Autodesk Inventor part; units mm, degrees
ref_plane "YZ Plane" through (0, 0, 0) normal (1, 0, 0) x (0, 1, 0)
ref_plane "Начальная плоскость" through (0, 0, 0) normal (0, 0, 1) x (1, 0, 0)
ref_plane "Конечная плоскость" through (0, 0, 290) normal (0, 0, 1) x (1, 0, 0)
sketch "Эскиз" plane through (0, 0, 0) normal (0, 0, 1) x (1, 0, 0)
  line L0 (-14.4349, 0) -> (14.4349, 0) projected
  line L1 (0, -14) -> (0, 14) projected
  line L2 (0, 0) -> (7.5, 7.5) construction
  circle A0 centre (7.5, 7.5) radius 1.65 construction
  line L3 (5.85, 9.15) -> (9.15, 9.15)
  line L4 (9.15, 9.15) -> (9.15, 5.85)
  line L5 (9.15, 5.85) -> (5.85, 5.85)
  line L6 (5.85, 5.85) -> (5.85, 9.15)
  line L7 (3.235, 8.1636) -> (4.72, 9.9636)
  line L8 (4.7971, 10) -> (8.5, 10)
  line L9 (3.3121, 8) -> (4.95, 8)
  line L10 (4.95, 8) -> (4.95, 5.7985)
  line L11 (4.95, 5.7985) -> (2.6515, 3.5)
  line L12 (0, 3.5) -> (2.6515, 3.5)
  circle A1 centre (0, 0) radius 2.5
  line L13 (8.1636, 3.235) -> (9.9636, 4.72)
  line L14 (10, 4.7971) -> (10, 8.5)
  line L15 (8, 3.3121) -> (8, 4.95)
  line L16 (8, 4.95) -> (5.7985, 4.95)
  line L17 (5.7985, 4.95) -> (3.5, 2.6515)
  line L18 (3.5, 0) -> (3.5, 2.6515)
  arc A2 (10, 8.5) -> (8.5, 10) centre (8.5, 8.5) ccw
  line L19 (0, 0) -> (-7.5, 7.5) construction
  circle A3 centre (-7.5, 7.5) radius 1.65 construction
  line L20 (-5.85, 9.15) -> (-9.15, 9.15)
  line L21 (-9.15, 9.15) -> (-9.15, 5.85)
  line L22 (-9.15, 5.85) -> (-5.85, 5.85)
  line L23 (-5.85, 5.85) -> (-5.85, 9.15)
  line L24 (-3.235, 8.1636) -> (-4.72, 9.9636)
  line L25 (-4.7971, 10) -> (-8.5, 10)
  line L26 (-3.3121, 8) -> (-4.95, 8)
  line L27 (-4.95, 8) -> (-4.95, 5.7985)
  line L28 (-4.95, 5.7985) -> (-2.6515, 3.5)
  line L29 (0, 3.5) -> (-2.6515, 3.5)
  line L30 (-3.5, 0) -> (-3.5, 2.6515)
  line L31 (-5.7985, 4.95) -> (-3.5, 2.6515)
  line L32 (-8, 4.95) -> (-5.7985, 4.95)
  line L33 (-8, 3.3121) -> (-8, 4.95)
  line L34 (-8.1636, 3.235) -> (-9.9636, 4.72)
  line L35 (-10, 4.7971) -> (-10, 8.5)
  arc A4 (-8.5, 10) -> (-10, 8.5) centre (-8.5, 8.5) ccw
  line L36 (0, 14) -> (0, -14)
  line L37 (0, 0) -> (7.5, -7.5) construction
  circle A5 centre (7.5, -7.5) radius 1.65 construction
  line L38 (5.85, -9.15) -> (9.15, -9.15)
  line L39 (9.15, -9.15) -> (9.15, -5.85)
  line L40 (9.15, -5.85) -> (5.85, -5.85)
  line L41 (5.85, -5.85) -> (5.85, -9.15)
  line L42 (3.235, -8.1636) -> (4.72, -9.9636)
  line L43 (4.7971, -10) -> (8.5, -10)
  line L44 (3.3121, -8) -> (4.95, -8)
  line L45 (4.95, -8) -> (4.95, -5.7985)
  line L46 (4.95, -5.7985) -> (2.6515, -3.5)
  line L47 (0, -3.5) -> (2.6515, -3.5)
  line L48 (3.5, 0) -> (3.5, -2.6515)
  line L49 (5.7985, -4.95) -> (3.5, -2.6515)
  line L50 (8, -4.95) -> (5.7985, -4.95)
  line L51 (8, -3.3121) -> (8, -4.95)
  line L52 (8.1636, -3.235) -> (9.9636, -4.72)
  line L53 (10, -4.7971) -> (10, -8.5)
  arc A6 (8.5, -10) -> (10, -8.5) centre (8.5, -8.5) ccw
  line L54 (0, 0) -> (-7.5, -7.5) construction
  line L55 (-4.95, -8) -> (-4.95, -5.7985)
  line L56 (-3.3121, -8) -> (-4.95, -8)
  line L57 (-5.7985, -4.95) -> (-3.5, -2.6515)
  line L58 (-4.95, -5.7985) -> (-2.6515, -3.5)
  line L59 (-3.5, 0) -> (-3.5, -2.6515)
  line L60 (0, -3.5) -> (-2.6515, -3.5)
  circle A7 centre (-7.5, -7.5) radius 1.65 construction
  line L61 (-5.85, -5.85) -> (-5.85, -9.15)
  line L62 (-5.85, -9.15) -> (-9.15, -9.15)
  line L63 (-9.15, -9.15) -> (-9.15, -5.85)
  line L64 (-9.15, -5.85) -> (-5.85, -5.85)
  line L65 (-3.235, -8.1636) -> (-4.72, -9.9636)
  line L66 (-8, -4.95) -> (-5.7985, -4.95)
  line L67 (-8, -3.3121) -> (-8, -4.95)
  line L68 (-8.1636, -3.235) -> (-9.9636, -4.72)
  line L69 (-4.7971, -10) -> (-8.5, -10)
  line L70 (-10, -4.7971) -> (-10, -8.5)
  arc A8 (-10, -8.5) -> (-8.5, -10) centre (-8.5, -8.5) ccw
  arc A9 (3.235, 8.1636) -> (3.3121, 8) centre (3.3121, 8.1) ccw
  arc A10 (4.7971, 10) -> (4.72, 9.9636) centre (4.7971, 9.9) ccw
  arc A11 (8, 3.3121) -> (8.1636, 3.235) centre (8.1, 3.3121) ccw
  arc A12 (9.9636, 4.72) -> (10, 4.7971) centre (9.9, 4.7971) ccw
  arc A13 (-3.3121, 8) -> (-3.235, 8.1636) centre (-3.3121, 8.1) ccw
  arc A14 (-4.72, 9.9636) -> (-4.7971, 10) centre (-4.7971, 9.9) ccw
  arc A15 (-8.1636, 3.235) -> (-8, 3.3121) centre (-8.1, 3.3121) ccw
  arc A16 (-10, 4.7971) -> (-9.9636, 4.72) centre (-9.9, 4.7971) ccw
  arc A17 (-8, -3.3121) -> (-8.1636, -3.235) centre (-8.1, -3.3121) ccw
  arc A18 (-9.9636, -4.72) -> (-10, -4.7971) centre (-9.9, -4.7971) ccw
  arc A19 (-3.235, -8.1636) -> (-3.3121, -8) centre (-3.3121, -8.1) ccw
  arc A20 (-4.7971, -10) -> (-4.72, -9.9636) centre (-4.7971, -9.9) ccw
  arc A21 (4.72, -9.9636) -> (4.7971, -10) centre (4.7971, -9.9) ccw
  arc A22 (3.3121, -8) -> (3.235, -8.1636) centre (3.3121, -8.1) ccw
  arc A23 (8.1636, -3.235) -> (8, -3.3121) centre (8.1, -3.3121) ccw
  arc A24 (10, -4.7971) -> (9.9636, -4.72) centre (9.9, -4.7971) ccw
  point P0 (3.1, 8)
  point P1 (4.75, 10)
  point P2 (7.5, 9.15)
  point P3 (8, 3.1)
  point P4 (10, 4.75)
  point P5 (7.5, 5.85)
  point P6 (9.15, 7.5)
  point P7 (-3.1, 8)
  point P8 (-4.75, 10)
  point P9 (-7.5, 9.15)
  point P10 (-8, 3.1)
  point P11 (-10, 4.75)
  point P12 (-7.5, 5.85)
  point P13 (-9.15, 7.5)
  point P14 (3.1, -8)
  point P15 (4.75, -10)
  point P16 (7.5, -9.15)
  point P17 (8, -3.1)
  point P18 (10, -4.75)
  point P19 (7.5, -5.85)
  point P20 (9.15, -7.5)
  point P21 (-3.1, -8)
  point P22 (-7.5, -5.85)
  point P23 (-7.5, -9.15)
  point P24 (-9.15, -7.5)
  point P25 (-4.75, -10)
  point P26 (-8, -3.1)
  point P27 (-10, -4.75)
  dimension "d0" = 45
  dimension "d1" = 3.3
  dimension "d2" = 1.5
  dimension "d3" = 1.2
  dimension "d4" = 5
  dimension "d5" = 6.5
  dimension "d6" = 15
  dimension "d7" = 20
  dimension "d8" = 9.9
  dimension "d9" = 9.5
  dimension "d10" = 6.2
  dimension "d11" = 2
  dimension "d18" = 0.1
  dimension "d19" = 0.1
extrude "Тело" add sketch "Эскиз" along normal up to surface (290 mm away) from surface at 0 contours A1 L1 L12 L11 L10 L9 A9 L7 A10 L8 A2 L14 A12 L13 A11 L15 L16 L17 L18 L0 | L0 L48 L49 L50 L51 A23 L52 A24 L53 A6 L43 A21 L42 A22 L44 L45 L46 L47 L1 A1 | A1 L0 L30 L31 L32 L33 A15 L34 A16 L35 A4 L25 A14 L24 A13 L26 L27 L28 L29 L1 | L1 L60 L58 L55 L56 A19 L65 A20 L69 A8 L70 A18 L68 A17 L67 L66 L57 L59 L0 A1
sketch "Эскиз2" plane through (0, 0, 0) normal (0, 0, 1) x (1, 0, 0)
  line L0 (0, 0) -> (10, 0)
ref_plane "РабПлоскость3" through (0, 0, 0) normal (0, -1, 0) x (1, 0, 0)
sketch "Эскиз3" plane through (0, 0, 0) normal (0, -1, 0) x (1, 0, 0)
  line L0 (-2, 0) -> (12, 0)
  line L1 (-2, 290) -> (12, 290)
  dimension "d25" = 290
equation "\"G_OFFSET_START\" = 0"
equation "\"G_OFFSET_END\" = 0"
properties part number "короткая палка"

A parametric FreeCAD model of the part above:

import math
import FreeCAD as App
import Part
import Sketcher
Q = App.Units.Quantity

doc = App.newDocument("Part")
body = doc.addObject("PartDesign::Body", "Body")

# Sketch on XY plane
sketch1 = body.newObject("Sketcher::SketchObject", "Sketch")
sketch1.AttachmentSupport = (doc.getObject("XY_Plane"), [""])
sketch1.MapMode = "FlatFace"
sketch1.addGeometry(Part.LineSegment(App.Vector(2.65, 3.5, 0), App.Vector(-2.65, 3.5, 0)), False)
sketch1.addGeometry(Part.LineSegment(App.Vector(-2.65, 3.5, 0), App.Vector(-4.95, 5.8, 0)), False)
sketch1.addGeometry(Part.LineSegment(App.Vector(-4.95, 5.8, 0), App.Vector(-4.95, 8, 0)), False)
sketch1.addGeometry(Part.LineSegment(App.Vector(-4.95, 8, 0), App.Vector(-3.31, 8, 0)), False)
sketch1.addGeometry(Part.ArcOfCircle(Part.Circle(App.Vector(-3.31, 8.1, 0), App.Vector(0, 0, 1), 0.1), math.radians(-90), math.radians(40)), False)
sketch1.addGeometry(Part.LineSegment(App.Vector(-3.23, 8.16, 0), App.Vector(-4.72, 9.96, 0)), False)
sketch1.addGeometry(Part.ArcOfCircle(Part.Circle(App.Vector(-4.8, 9.9, 0), App.Vector(0, 0, 1), 0.1), math.radians(40), math.radians(90)), False)
sketch1.addGeometry(Part.LineSegment(App.Vector(-4.8, 10, 0), App.Vector(-8.5, 10, 0)), False)
sketch1.addGeometry(Part.ArcOfCircle(Part.Circle(App.Vector(-8.5, 8.5, 0), App.Vector(0, 0, 1), 1.5), math.radians(90), math.radians(180)), False)
sketch1.addGeometry(Part.LineSegment(App.Vector(-10, 8.5, 0), App.Vector(-10, 4.8, 0)), False)
sketch1.addGeometry(Part.ArcOfCircle(Part.Circle(App.Vector(-9.9, 4.8, 0), App.Vector(0, 0, 1), 0.1), math.radians(180), math.radians(230)), False)
sketch1.addGeometry(Part.LineSegment(App.Vector(-9.96, 4.72, 0), App.Vector(-8.16, 3.23, 0)), False)
sketch1.addGeometry(Part.ArcOfCircle(Part.Circle(App.Vector(-8.1, 3.31, 0), App.Vector(0, 0, 1), 0.1), math.radians(-130), math.radians(0)), False)
sketch1.addGeometry(Part.LineSegment(App.Vector(-8, 3.31, 0), App.Vector(-8, 4.95, 0)), False)
sketch1.addGeometry(Part.LineSegment(App.Vector(-8, 4.95, 0), App.Vector(-5.8, 4.95, 0)), False)
sketch1.addGeometry(Part.LineSegment(App.Vector(-5.8, 4.95, 0), App.Vector(-3.5, 2.65, 0)), False)
sketch1.addGeometry(Part.LineSegment(App.Vector(-3.5, 2.65, 0), App.Vector(-3.5, -2.65, 0)), False)
sketch1.addGeometry(Part.LineSegment(App.Vector(-3.5, -2.65, 0), App.Vector(-5.8, -4.95, 0)), False)
sketch1.addGeometry(Part.LineSegment(App.Vector(-5.8, -4.95, 0), App.Vector(-8, -4.95, 0)), False)
sketch1.addGeometry(Part.LineSegment(App.Vector(-8, -4.95, 0), App.Vector(-8, -3.31, 0)), False)
sketch1.addGeometry(Part.ArcOfCircle(Part.Circle(App.Vector(-8.1, -3.31, 0), App.Vector(0, 0, 1), 0.1), math.radians(0), math.radians(130)), False)
sketch1.addGeometry(Part.LineSegment(App.Vector(-8.16, -3.23, 0), App.Vector(-9.96, -4.72, 0)), False)
sketch1.addGeometry(Part.ArcOfCircle(Part.Circle(App.Vector(-9.9, -4.8, 0), App.Vector(0, 0, 1), 0.1), math.radians(130), math.radians(180)), False)
sketch1.addGeometry(Part.LineSegment(App.Vector(-10, -4.8, 0), App.Vector(-10, -8.5, 0)), False)
sketch1.addGeometry(Part.ArcOfCircle(Part.Circle(App.Vector(-8.5, -8.5, 0), App.Vector(0, 0, 1), 1.5), math.radians(180), math.radians(270)), False)
sketch1.addGeometry(Part.LineSegment(App.Vector(-8.5, -10, 0), App.Vector(-4.8, -10, 0)), False)
sketch1.addGeometry(Part.ArcOfCircle(Part.Circle(App.Vector(-4.8, -9.9, 0), App.Vector(0, 0, 1), 0.1), math.radians(-90), math.radians(-40)), False)
sketch1.addGeometry(Part.LineSegment(App.Vector(-4.72, -9.96, 0), App.Vector(-3.23, -8.16, 0)), False)
sketch1.addGeometry(Part.ArcOfCircle(Part.Circle(App.Vector(-3.31, -8.1, 0), App.Vector(0, 0, 1), 0.1), math.radians(-40), math.radians(90)), False)
sketch1.addGeometry(Part.LineSegment(App.Vector(-3.31, -8, 0), App.Vector(-4.95, -8, 0)), False)
sketch1.addGeometry(Part.LineSegment(App.Vector(-4.95, -8, 0), App.Vector(-4.95, -5.8, 0)), False)
sketch1.addGeometry(Part.LineSegment(App.Vector(-4.95, -5.8, 0), App.Vector(-2.65, -3.5, 0)), False)
sketch1.addGeometry(Part.LineSegment(App.Vector(-2.65, -3.5, 0), App.Vector(2.65, -3.5, 0)), False)
sketch1.addGeometry(Part.LineSegment(App.Vector(2.65, -3.5, 0), App.Vector(4.95, -5.8, 0)), False)
sketch1.addGeometry(Part.LineSegment(App.Vector(4.95, -5.8, 0), App.Vector(4.95, -8, 0)), False)
sketch1.addGeometry(Part.LineSegment(App.Vector(4.95, -8, 0), App.Vector(3.31, -8, 0)), False)
sketch1.addGeometry(Part.ArcOfCircle(Part.Circle(App.Vector(3.31, -8.1, 0), App.Vector(0, 0, 1), 0.1), math.radians(90), math.radians(220)), False)
sketch1.addGeometry(Part.LineSegment(App.Vector(3.23, -8.16, 0), App.Vector(4.72, -9.96, 0)), False)
sketch1.addGeometry(Part.ArcOfCircle(Part.Circle(App.Vector(4.8, -9.9, 0), App.Vector(0, 0, 1), 0.1), math.radians(-140), math.radians(-90)), False)
sketch1.addGeometry(Part.LineSegment(App.Vector(4.8, -10, 0), App.Vector(8.5, -10, 0)), False)
sketch1.addGeometry(Part.ArcOfCircle(Part.Circle(App.Vector(8.5, -8.5, 0), App.Vector(0, 0, 1), 1.5), math.radians(-90), math.radians(0)), False)
sketch1.addGeometry(Part.LineSegment(App.Vector(10, -8.5, 0), App.Vector(10, -4.8, 0)), False)
sketch1.addGeometry(Part.ArcOfCircle(Part.Circle(App.Vector(9.9, -4.8, 0), App.Vector(0, 0, 1), 0.1), math.radians(0), math.radians(50)), False)
sketch1.addGeometry(Part.LineSegment(App.Vector(9.96, -4.72, 0), App.Vector(8.16, -3.23, 0)), False)
sketch1.addGeometry(Part.ArcOfCircle(Part.Circle(App.Vector(8.1, -3.31, 0), App.Vector(0, 0, 1), 0.1), math.radians(50), math.radians(180)), False)
sketch1.addGeometry(Part.LineSegment(App.Vector(8, -3.31, 0), App.Vector(8, -4.95, 0)), False)
sketch1.addGeometry(Part.LineSegment(App.Vector(8, -4.95, 0), App.Vector(5.8, -4.95, 0)), False)
sketch1.addGeometry(Part.LineSegment(App.Vector(5.8, -4.95, 0), App.Vector(3.5, -2.65, 0)), False)
sketch1.addGeometry(Part.LineSegment(App.Vector(3.5, -2.65, 0), App.Vector(3.5, 2.65, 0)), False)
sketch1.addGeometry(Part.LineSegment(App.Vector(3.5, 2.65, 0), App.Vector(5.8, 4.95, 0)), False)
sketch1.addGeometry(Part.LineSegment(App.Vector(5.8, 4.95, 0), App.Vector(8, 4.95, 0)), False)
sketch1.addGeometry(Part.LineSegment(App.Vector(8, 4.95, 0), App.Vector(8, 3.31, 0)), False)
sketch1.addGeometry(Part.ArcOfCircle(Part.Circle(App.Vector(8.1, 3.31, 0), App.Vector(0, 0, 1), 0.1), math.radians(180), math.radians(310)), False)
sketch1.addGeometry(Part.LineSegment(App.Vector(8.16, 3.23, 0), App.Vector(9.96, 4.72, 0)), False)
sketch1.addGeometry(Part.ArcOfCircle(Part.Circle(App.Vector(9.9, 4.8, 0), App.Vector(0, 0, 1), 0.1), math.radians(-50), math.radians(0)), False)
sketch1.addGeometry(Part.LineSegment(App.Vector(10, 4.8, 0), App.Vector(10, 8.5, 0)), False)
sketch1.addGeometry(Part.ArcOfCircle(Part.Circle(App.Vector(8.5, 8.5, 0), App.Vector(0, 0, 1), 1.5), math.radians(0), math.radians(90)), False)
sketch1.addGeometry(Part.LineSegment(App.Vector(8.5, 10, 0), App.Vector(4.8, 10, 0)), False)
sketch1.addGeometry(Part.ArcOfCircle(Part.Circle(App.Vector(4.8, 9.9, 0), App.Vector(0, 0, 1), 0.1), math.radians(90), math.radians(140)), False)
sketch1.addGeometry(Part.LineSegment(App.Vector(4.72, 9.96, 0), App.Vector(3.23, 8.16, 0)), False)
sketch1.addGeometry(Part.ArcOfCircle(Part.Circle(App.Vector(3.31, 8.1, 0), App.Vector(0, 0, 1), 0.1), math.radians(140), math.radians(270)), False)
sketch1.addGeometry(Part.LineSegment(App.Vector(3.31, 8, 0), App.Vector(4.95, 8, 0)), False)
sketch1.addGeometry(Part.LineSegment(App.Vector(4.95, 8, 0), App.Vector(4.95, 5.8, 0)), False)
sketch1.addGeometry(Part.LineSegment(App.Vector(4.95, 5.8, 0), App.Vector(2.65, 3.5, 0)), False)
sketch1.addGeometry(Part.Circle(App.Vector(0, 0, 0), App.Vector(0, 0, 1), 2.5), False)
sketch1.addGeometry(Part.LineSegment(App.Vector(5.85, 5.85, 0), App.Vector(5.85, 9.15, 0)), False)
sketch1.addGeometry(Part.LineSegment(App.Vector(5.85, 9.15, 0), App.Vector(9.15, 9.15, 0)), False)
sketch1.addGeometry(Part.LineSegment(App.Vector(9.15, 9.15, 0), App.Vector(9.15, 5.85, 0)), False)
sketch1.addGeometry(Part.LineSegment(App.Vector(9.15, 5.85, 0), App.Vector(5.85, 5.85, 0)), False)
sketch1.addGeometry(Part.LineSegment(App.Vector(-5.85, 9.15, 0), App.Vector(-5.85, 5.85, 0)), False)
sketch1.addGeometry(Part.LineSegment(App.Vector(-5.85, 5.85, 0), App.Vector(-9.15, 5.85, 0)), False)
sketch1.addGeometry(Part.LineSegment(App.Vector(-9.15, 5.85, 0), App.Vector(-9.15, 9.15, 0)), False)
sketch1.addGeometry(Part.LineSegment(App.Vector(-9.15, 9.15, 0), App.Vector(-5.85, 9.15, 0)), False)
sketch1.addGeometry(Part.LineSegment(App.Vector(5.85, -9.15, 0), App.Vector(5.85, -5.85, 0)), False)
sketch1.addGeometry(Part.LineSegment(App.Vector(5.85, -5.85, 0), App.Vector(9.15, -5.85, 0)), False)
sketch1.addGeometry(Part.LineSegment(App.Vector(9.15, -5.85, 0), App.Vector(9.15, -9.15, 0)), False)
sketch1.addGeometry(Part.LineSegment(App.Vector(9.15, -9.15, 0), App.Vector(5.85, -9.15, 0)), False)
sketch1.addGeometry(Part.LineSegment(App.Vector(-5.85, -9.15, 0), App.Vector(-9.15, -9.15, 0)), False)
sketch1.addGeometry(Part.LineSegment(App.Vector(-9.15, -9.15, 0), App.Vector(-9.15, -5.85, 0)), False)
sketch1.addGeometry(Part.LineSegment(App.Vector(-9.15, -5.85, 0), App.Vector(-5.85, -5.85, 0)), False)
sketch1.addGeometry(Part.LineSegment(App.Vector(-5.85, -5.85, 0), App.Vector(-5.85, -9.15, 0)), False)
sketch1.addConstraint(Sketcher.Constraint("Coincident", 0, 2, 1, 1))
sketch1.addConstraint(Sketcher.Constraint("Coincident", 1, 2, 2, 1))
sketch1.addConstraint(Sketcher.Constraint("Coincident", 2, 2, 3, 1))
sketch1.addConstraint(Sketcher.Constraint("Tangent", 3, 2, 4, 1))
sketch1.addConstraint(Sketcher.Constraint("Tangent", 4, 2, 5, 1))
sketch1.addConstraint(Sketcher.Constraint("Tangent", 5, 2, 6, 1))
sketch1.addConstraint(Sketcher.Constraint("Tangent", 6, 2, 7, 1))
sketch1.addConstraint(Sketcher.Constraint("Tangent", 7, 2, 8, 1))
sketch1.addConstraint(Sketcher.Constraint("Tangent", 8, 2, 9, 1))
sketch1.addConstraint(Sketcher.Constraint("Tangent", 9, 2, 10, 1))
sketch1.addConstraint(Sketcher.Constraint("Tangent", 10, 2, 11, 1))
sketch1.addConstraint(Sketcher.Constraint("Tangent", 11, 2, 12, 1))
sketch1.addConstraint(Sketcher.Constraint("Tangent", 12, 2, 13, 1))
sketch1.addConstraint(Sketcher.Constraint("Coincident", 13, 2, 14, 1))
sketch1.addConstraint(Sketcher.Constraint("Coincident", 14, 2, 15, 1))
sketch1.addConstraint(Sketcher.Constraint("Coincident", 15, 2, 16, 1))
sketch1.addConstraint(Sketcher.Constraint("Coincident", 16, 2, 17, 1))
sketch1.addConstraint(Sketcher.Constraint("Coincident", 17, 2, 18, 1))
sketch1.addConstraint(Sketcher.Constraint("Coincident", 18, 2, 19, 1))
sketch1.addConstraint(Sketcher.Constraint("Tangent", 19, 2, 20, 1))
sketch1.addConstraint(Sketcher.Constraint("Tangent", 20, 2, 21, 1))
sketch1.addConstraint(Sketcher.Constraint("Tangent", 21, 2, 22, 1))
sketch1.addConstraint(Sketcher.Constraint("Tangent", 22, 2, 23, 1))
sketch1.addConstraint(Sketcher.Constraint("Tangent", 23, 2, 24, 1))
sketch1.addConstraint(Sketcher.Constraint("Tangent", 24, 2, 25, 1))
sketch1.addConstraint(Sketcher.Constraint("Tangent", 25, 2, 26, 1))
sketch1.addConstraint(Sketcher.Constraint("Tangent", 26, 2, 27, 1))
sketch1.addConstraint(Sketcher.Constraint("Tangent", 27, 2, 28, 1))
sketch1.addConstraint(Sketcher.Constraint("Tangent", 28, 2, 29, 1))
sketch1.addConstraint(Sketcher.Constraint("Coincident", 29, 2, 30, 1))
sketch1.addConstraint(Sketcher.Constraint("Coincident", 30, 2, 31, 1))
sketch1.addConstraint(Sketcher.Constraint("Coincident", 31, 2, 32, 1))
sketch1.addConstraint(Sketcher.Constraint("Coincident", 32, 2, 33, 1))
sketch1.addConstraint(Sketcher.Constraint("Coincident", 33, 2, 34, 1))
sketch1.addConstraint(Sketcher.Constraint("Coincident", 34, 2, 35, 1))
sketch1.addConstraint(Sketcher.Constraint("Tangent", 35, 2, 36, 1))
sketch1.addConstraint(Sketcher.Constraint("Tangent", 36, 2, 37, 1))
sketch1.addConstraint(Sketcher.Constraint("Tangent", 37, 2, 38, 1))
sketch1.addConstraint(Sketcher.Constraint("Tangent", 38, 2, 39, 1))
sketch1.addConstraint(Sketcher.Constraint("Tangent", 39, 2, 40, 1))
sketch1.addConstraint(Sketcher.Constraint("Tangent", 40, 2, 41, 1))
sketch1.addConstraint(Sketcher.Constraint("Tangent", 41, 2, 42, 1))
sketch1.addConstraint(Sketcher.Constraint("Tangent", 42, 2, 43, 1))
sketch1.addConstraint(Sketcher.Constraint("Tangent", 43, 2, 44, 1))
sketch1.addConstraint(Sketcher.Constraint("Tangent", 44, 2, 45, 1))
sketch1.addConstraint(Sketcher.Constraint("Coincident", 45, 2, 46, 1))
sketch1.addConstraint(Sketcher.Constraint("Coincident", 46, 2, 47, 1))
sketch1.addConstraint(Sketcher.Constraint("Coincident", 47, 2, 48, 1))
sketch1.addConstraint(Sketcher.Constraint("Coincident", 48, 2, 49, 1))
sketch1.addConstraint(Sketcher.Constraint("Coincident", 49, 2, 50, 1))
sketch1.addConstraint(Sketcher.Constraint("Coincident", 50, 2, 51, 1))
sketch1.addConstraint(Sketcher.Constraint("Tangent", 51, 2, 52, 1))
sketch1.addConstraint(Sketcher.Constraint("Tangent", 52, 2, 53, 1))
sketch1.addConstraint(Sketcher.Constraint("Tangent", 53, 2, 54, 1))
sketch1.addConstraint(Sketcher.Constraint("Tangent", 54, 2, 55, 1))
sketch1.addConstraint(Sketcher.Constraint("Tangent", 55, 2, 56, 1))
sketch1.addConstraint(Sketcher.Constraint("Tangent", 56, 2, 57, 1))
sketch1.addConstraint(Sketcher.Constraint("Tangent", 57, 2, 58, 1))
sketch1.addConstraint(Sketcher.Constraint("Tangent", 58, 2, 59, 1))
sketch1.addConstraint(Sketcher.Constraint("Tangent", 59, 2, 60, 1))
sketch1.addConstraint(Sketcher.Constraint("Tangent", 60, 2, 61, 1))
sketch1.addConstraint(Sketcher.Constraint("Coincident", 61, 2, 62, 1))
sketch1.addConstraint(Sketcher.Constraint("Coincident", 62, 2, 63, 1))
sketch1.addConstraint(Sketcher.Constraint("Coincident", 63, 2, 0, 1))
sketch1.addConstraint(Sketcher.Constraint("Coincident", 65, 2, 66, 1))
sketch1.addConstraint(Sketcher.Constraint("Coincident", 66, 2, 67, 1))
sketch1.addConstraint(Sketcher.Constraint("Coincident", 67, 2, 68, 1))
sketch1.addConstraint(Sketcher.Constraint("Coincident", 68, 2, 65, 1))
sketch1.addConstraint(Sketcher.Constraint("Coincident", 69, 2, 70, 1))
sketch1.addConstraint(Sketcher.Constraint("Coincident", 70, 2, 71, 1))
sketch1.addConstraint(Sketcher.Constraint("Coincident", 71, 2, 72, 1))
sketch1.addConstraint(Sketcher.Constraint("Coincident", 72, 2, 69, 1))
sketch1.addConstraint(Sketcher.Constraint("Coincident", 73, 2, 74, 1))
sketch1.addConstraint(Sketcher.Constraint("Coincident", 74, 2, 75, 1))
sketch1.addConstraint(Sketcher.Constraint("Coincident", 75, 2, 76, 1))
sketch1.addConstraint(Sketcher.Constraint("Coincident", 76, 2, 73, 1))
sketch1.addConstraint(Sketcher.Constraint("Coincident", 77, 2, 78, 1))
sketch1.addConstraint(Sketcher.Constraint("Coincident", 78, 2, 79, 1))
sketch1.addConstraint(Sketcher.Constraint("Coincident", 79, 2, 80, 1))
sketch1.addConstraint(Sketcher.Constraint("Coincident", 80, 2, 77, 1))
sketch1.addConstraint(Sketcher.Constraint("Horizontal", 0))
sketch1.addConstraint(Sketcher.Constraint("Vertical", 2))
sketch1.addConstraint(Sketcher.Constraint("Horizontal", 3))
sketch1.addConstraint(Sketcher.Constraint("Horizontal", 7))
sketch1.addConstraint(Sketcher.Constraint("Vertical", 9))
sketch1.addConstraint(Sketcher.Constraint("Vertical", 13))
sketch1.addConstraint(Sketcher.Constraint("Horizontal", 14))
sketch1.addConstraint(Sketcher.Constraint("Vertical", 16))
sketch1.addConstraint(Sketcher.Constraint("Horizontal", 18))
sketch1.addConstraint(Sketcher.Constraint("Vertical", 19))
sketch1.addConstraint(Sketcher.Constraint("Vertical", 23))
sketch1.addConstraint(Sketcher.Constraint("Horizontal", 25))
sketch1.addConstraint(Sketcher.Constraint("Horizontal", 29))
sketch1.addConstraint(Sketcher.Constraint("Vertical", 30))
sketch1.addConstraint(Sketcher.Constraint("Horizontal", 32))
sketch1.addConstraint(Sketcher.Constraint("Vertical", 34))
sketch1.addConstraint(Sketcher.Constraint("Horizontal", 35))
sketch1.addConstraint(Sketcher.Constraint("Horizontal", 39))
sketch1.addConstraint(Sketcher.Constraint("Vertical", 41))
sketch1.addConstraint(Sketcher.Constraint("Vertical", 45))
sketch1.addConstraint(Sketcher.Constraint("Horizontal", 46))
sketch1.addConstraint(Sketcher.Constraint("Vertical", 48))
sketch1.addConstraint(Sketcher.Constraint("Horizontal", 50))
sketch1.addConstraint(Sketcher.Constraint("Vertical", 51))
sketch1.addConstraint(Sketcher.Constraint("Vertical", 55))
sketch1.addConstraint(Sketcher.Constraint("Horizontal", 57))
sketch1.addConstraint(Sketcher.Constraint("Horizontal", 61))
sketch1.addConstraint(Sketcher.Constraint("Vertical", 62))
sketch1.addConstraint(Sketcher.Constraint("Vertical", 65))
sketch1.addConstraint(Sketcher.Constraint("Horizontal", 66))
sketch1.addConstraint(Sketcher.Constraint("Vertical", 67))
sketch1.addConstraint(Sketcher.Constraint("Horizontal", 68))
sketch1.addConstraint(Sketcher.Constraint("Vertical", 69))
sketch1.addConstraint(Sketcher.Constraint("Horizontal", 70))
sketch1.addConstraint(Sketcher.Constraint("Vertical", 71))
sketch1.addConstraint(Sketcher.Constraint("Horizontal", 72))
sketch1.addConstraint(Sketcher.Constraint("Vertical", 73))
sketch1.addConstraint(Sketcher.Constraint("Horizontal", 74))
sketch1.addConstraint(Sketcher.Constraint("Vertical", 75))
sketch1.addConstraint(Sketcher.Constraint("Horizontal", 76))
sketch1.addConstraint(Sketcher.Constraint("Horizontal", 77))
sketch1.addConstraint(Sketcher.Constraint("Vertical", 78))
sketch1.addConstraint(Sketcher.Constraint("Horizontal", 79))
sketch1.addConstraint(Sketcher.Constraint("Vertical", 80))
sketch1.addConstraint(Sketcher.Constraint("Coincident", 64, 3, -1, 1))
sketch1.addConstraint(Sketcher.Constraint("Equal", 4, 6))
sketch1.addConstraint(Sketcher.Constraint("Equal", 6, 10))
sketch1.addConstraint(Sketcher.Constraint("Equal", 10, 12))
sketch1.addConstraint(Sketcher.Constraint("Equal", 12, 20))
sketch1.addConstraint(Sketcher.Constraint("Equal", 20, 22))
sketch1.addConstraint(Sketcher.Constraint("Equal", 8, 24))
sketch1.addConstraint(Sketcher.Constraint("Equal", 22, 26))
sketch1.addConstraint(Sketcher.Constraint("Equal", 26, 28))
sketch1.addConstraint(Sketcher.Constraint("Equal", 28, 36))
sketch1.addConstraint(Sketcher.Constraint("Equal", 36, 38))
sketch1.addConstraint(Sketcher.Constraint("Equal", 24, 40))
sketch1.addConstraint(Sketcher.Constraint("Equal", 38, 42))
sketch1.addConstraint(Sketcher.Constraint("Equal", 42, 44))
sketch1.addConstraint(Sketcher.Constraint("Equal", 44, 52))
sketch1.addConstraint(Sketcher.Constraint("Equal", 52, 54))
sketch1.addConstraint(Sketcher.Constraint("Equal", 40, 56))
sketch1.addConstraint(Sketcher.Constraint("Equal", 54, 58))
sketch1.addConstraint(Sketcher.Constraint("Equal", 58, 60))
sketch1.addConstraint(Sketcher.Constraint("Symmetric", 4, 3, 36, 3, -1, 1))
sketch1.addConstraint(Sketcher.Constraint("Symmetric", 6, 3, 38, 3, -1, 1))
sketch1.addConstraint(Sketcher.Constraint("Symmetric", 10, 3, 42, 3, -1, 1))
sketch1.addConstraint(Sketcher.Constraint("Symmetric", 12, 3, 44, 3, -1, 1))
sketch1.addConstraint(Sketcher.Constraint("Symmetric", 20, 3, 52, 3, -1, 1))
sketch1.addConstraint(Sketcher.Constraint("Symmetric", 22, 3, 54, 3, -1, 1))
sketch1.addConstraint(Sketcher.Constraint("Symmetric", 26, 3, 58, 3, -1, 1))
sketch1.addConstraint(Sketcher.Constraint("Symmetric", 28, 3, 60, 3, -1, 1))
sketch1.addConstraint(Sketcher.Constraint("Symmetric", 0, 2, 32, 2, -1, 1))
sketch1.addConstraint(Sketcher.Constraint("Symmetric", 1, 2, 33, 2, -1, 1))
sketch1.addConstraint(Sketcher.Constraint("Symmetric", 14, 2, 46, 2, -1, 1))
sketch1.addConstraint(Sketcher.Constraint("Symmetric", 15, 2, 47, 2, -1, 1))
sketch1.addConstraint(Sketcher.Constraint("Symmetric", 17, 2, 49, 2, -1, 1))
sketch1.addConstraint(Sketcher.Constraint("Symmetric", 30, 2, 62, 2, -1, 1))
sketch1.addConstraint(Sketcher.Constraint("Symmetric", 69, 2, 73, 2, -1, 1))
sketch1.addConstraint(Sketcher.Constraint("Symmetric", 71, 2, 75, 2, -1, 1))
sketch1.addConstraint(Sketcher.Constraint("Symmetric", 66, 2, 77, 2, -1, 1))
sketch1.addConstraint(Sketcher.Constraint("Symmetric", 68, 2, 79, 2, -1, 1))
sketch1.addConstraint(Sketcher.Constraint("Symmetric", 28, 3, 36, 3, -2))
sketch1.addConstraint(Sketcher.Constraint("Symmetric", 26, 3, 38, 3, -2))
sketch1.addConstraint(Sketcher.Constraint("Symmetric", 22, 3, 42, 3, -2))
sketch1.addConstraint(Sketcher.Constraint("Symmetric", 20, 3, 44, 3, -2))
sketch1.addConstraint(Sketcher.Constraint("Symmetric", 30, 2, 33, 2, -2))
sketch1.addConstraint(Sketcher.Constraint("Symmetric", 17, 2, 46, 2, -2))
sketch1.addConstraint(Sketcher.Constraint("Symmetric", 68, 2, 69, 2, -2))
sketch1.addConstraint(Sketcher.Constraint("Symmetric", 66, 2, 71, 2, -2))
sketch1.addConstraint(Sketcher.Constraint("Parallel", 1, 15))
sketch1.addConstraint(Sketcher.Constraint("Perpendicular", 15, 17))
sketch1.addConstraint(Sketcher.Constraint("Perpendicular", 5, 21))
sketch1.addConstraint(Sketcher.Constraint("Parallel", 17, 31))
sketch1.addConstraint(Sketcher.Constraint("Perpendicular", 47, 49))
sketch1.addConstraint(Sketcher.Constraint("Parallel", 49, 63))
sketch1.addConstraint(Sketcher.Constraint("Horizontal", 16, 2, 47, 2))
sketch1.addConstraint(Sketcher.Constraint("Equal", 50, 2))
sketch1.addConstraint(Sketcher.Constraint("Equal", 57, 9))
sketch1.addConstraint(Sketcher.Constraint("Equal", 61, 13))
sketch1.addConstraint(Sketcher.Constraint("Equal", 32, 16))
sketch1.addConstraint(Sketcher.Constraint("Equal", 79, 65))
sketch1.addConstraint(Sketcher.Constraint("Equal", 5, 11))
sketch1.addConstraint(Sketcher.Constraint("Equal", 1, 15))
sketch1.addConstraint(Sketcher.Constraint("Diameter", 64, Q("5 mm")))
sketch1.addConstraint(Sketcher.Constraint("Radius", 4, Q("0.1 mm")))
sketch1.addConstraint(Sketcher.Constraint("Radius", 8, Q("1.5 mm")))
sketch1.addConstraint(Sketcher.Constraint("DistanceX", 66, 1, 66, 2, Q("3.3 mm")))
sketch1.addConstraint(Sketcher.Constraint("DistanceY", -1, 1, 6, 3, Q("9.9 mm")))
sketch1.addConstraint(Sketcher.Constraint("DistanceY", -1, 1, 2, 2, Q("8 mm")))
sketch1.addConstraint(Sketcher.Constraint("DistanceY", -1, 1, 0, 2, Q("3.5 mm")))
sketch1.addConstraint(Sketcher.Constraint("DistanceX", 0, 2, 0, 1, Q("5.303 mm")))
sketch1.addConstraint(Sketcher.Constraint("DistanceX", 3, 1, 3, 2, Q("1.638 mm")))
sketch1.addConstraint(Sketcher.Constraint("DistanceX", 7, 2, 7, 1, Q("3.703 mm")))
sketch1.addConstraint(Sketcher.Constraint("DistanceX", 1, 2, -1, 1, Q("4.95 mm")))
sketch1.addConstraint(Sketcher.Constraint("DistanceX", -1, 1, 65, 2, Q("5.85 mm")))
sketch1.addConstraint(Sketcher.Constraint("DistanceY", -1, 1, 65, 2, Q("9.15 mm")))
pad1 = body.newObject("PartDesign::Pad", "Pad")
pad1.Profile = sketch1
pad1.Length = 290

doc.recompute()
